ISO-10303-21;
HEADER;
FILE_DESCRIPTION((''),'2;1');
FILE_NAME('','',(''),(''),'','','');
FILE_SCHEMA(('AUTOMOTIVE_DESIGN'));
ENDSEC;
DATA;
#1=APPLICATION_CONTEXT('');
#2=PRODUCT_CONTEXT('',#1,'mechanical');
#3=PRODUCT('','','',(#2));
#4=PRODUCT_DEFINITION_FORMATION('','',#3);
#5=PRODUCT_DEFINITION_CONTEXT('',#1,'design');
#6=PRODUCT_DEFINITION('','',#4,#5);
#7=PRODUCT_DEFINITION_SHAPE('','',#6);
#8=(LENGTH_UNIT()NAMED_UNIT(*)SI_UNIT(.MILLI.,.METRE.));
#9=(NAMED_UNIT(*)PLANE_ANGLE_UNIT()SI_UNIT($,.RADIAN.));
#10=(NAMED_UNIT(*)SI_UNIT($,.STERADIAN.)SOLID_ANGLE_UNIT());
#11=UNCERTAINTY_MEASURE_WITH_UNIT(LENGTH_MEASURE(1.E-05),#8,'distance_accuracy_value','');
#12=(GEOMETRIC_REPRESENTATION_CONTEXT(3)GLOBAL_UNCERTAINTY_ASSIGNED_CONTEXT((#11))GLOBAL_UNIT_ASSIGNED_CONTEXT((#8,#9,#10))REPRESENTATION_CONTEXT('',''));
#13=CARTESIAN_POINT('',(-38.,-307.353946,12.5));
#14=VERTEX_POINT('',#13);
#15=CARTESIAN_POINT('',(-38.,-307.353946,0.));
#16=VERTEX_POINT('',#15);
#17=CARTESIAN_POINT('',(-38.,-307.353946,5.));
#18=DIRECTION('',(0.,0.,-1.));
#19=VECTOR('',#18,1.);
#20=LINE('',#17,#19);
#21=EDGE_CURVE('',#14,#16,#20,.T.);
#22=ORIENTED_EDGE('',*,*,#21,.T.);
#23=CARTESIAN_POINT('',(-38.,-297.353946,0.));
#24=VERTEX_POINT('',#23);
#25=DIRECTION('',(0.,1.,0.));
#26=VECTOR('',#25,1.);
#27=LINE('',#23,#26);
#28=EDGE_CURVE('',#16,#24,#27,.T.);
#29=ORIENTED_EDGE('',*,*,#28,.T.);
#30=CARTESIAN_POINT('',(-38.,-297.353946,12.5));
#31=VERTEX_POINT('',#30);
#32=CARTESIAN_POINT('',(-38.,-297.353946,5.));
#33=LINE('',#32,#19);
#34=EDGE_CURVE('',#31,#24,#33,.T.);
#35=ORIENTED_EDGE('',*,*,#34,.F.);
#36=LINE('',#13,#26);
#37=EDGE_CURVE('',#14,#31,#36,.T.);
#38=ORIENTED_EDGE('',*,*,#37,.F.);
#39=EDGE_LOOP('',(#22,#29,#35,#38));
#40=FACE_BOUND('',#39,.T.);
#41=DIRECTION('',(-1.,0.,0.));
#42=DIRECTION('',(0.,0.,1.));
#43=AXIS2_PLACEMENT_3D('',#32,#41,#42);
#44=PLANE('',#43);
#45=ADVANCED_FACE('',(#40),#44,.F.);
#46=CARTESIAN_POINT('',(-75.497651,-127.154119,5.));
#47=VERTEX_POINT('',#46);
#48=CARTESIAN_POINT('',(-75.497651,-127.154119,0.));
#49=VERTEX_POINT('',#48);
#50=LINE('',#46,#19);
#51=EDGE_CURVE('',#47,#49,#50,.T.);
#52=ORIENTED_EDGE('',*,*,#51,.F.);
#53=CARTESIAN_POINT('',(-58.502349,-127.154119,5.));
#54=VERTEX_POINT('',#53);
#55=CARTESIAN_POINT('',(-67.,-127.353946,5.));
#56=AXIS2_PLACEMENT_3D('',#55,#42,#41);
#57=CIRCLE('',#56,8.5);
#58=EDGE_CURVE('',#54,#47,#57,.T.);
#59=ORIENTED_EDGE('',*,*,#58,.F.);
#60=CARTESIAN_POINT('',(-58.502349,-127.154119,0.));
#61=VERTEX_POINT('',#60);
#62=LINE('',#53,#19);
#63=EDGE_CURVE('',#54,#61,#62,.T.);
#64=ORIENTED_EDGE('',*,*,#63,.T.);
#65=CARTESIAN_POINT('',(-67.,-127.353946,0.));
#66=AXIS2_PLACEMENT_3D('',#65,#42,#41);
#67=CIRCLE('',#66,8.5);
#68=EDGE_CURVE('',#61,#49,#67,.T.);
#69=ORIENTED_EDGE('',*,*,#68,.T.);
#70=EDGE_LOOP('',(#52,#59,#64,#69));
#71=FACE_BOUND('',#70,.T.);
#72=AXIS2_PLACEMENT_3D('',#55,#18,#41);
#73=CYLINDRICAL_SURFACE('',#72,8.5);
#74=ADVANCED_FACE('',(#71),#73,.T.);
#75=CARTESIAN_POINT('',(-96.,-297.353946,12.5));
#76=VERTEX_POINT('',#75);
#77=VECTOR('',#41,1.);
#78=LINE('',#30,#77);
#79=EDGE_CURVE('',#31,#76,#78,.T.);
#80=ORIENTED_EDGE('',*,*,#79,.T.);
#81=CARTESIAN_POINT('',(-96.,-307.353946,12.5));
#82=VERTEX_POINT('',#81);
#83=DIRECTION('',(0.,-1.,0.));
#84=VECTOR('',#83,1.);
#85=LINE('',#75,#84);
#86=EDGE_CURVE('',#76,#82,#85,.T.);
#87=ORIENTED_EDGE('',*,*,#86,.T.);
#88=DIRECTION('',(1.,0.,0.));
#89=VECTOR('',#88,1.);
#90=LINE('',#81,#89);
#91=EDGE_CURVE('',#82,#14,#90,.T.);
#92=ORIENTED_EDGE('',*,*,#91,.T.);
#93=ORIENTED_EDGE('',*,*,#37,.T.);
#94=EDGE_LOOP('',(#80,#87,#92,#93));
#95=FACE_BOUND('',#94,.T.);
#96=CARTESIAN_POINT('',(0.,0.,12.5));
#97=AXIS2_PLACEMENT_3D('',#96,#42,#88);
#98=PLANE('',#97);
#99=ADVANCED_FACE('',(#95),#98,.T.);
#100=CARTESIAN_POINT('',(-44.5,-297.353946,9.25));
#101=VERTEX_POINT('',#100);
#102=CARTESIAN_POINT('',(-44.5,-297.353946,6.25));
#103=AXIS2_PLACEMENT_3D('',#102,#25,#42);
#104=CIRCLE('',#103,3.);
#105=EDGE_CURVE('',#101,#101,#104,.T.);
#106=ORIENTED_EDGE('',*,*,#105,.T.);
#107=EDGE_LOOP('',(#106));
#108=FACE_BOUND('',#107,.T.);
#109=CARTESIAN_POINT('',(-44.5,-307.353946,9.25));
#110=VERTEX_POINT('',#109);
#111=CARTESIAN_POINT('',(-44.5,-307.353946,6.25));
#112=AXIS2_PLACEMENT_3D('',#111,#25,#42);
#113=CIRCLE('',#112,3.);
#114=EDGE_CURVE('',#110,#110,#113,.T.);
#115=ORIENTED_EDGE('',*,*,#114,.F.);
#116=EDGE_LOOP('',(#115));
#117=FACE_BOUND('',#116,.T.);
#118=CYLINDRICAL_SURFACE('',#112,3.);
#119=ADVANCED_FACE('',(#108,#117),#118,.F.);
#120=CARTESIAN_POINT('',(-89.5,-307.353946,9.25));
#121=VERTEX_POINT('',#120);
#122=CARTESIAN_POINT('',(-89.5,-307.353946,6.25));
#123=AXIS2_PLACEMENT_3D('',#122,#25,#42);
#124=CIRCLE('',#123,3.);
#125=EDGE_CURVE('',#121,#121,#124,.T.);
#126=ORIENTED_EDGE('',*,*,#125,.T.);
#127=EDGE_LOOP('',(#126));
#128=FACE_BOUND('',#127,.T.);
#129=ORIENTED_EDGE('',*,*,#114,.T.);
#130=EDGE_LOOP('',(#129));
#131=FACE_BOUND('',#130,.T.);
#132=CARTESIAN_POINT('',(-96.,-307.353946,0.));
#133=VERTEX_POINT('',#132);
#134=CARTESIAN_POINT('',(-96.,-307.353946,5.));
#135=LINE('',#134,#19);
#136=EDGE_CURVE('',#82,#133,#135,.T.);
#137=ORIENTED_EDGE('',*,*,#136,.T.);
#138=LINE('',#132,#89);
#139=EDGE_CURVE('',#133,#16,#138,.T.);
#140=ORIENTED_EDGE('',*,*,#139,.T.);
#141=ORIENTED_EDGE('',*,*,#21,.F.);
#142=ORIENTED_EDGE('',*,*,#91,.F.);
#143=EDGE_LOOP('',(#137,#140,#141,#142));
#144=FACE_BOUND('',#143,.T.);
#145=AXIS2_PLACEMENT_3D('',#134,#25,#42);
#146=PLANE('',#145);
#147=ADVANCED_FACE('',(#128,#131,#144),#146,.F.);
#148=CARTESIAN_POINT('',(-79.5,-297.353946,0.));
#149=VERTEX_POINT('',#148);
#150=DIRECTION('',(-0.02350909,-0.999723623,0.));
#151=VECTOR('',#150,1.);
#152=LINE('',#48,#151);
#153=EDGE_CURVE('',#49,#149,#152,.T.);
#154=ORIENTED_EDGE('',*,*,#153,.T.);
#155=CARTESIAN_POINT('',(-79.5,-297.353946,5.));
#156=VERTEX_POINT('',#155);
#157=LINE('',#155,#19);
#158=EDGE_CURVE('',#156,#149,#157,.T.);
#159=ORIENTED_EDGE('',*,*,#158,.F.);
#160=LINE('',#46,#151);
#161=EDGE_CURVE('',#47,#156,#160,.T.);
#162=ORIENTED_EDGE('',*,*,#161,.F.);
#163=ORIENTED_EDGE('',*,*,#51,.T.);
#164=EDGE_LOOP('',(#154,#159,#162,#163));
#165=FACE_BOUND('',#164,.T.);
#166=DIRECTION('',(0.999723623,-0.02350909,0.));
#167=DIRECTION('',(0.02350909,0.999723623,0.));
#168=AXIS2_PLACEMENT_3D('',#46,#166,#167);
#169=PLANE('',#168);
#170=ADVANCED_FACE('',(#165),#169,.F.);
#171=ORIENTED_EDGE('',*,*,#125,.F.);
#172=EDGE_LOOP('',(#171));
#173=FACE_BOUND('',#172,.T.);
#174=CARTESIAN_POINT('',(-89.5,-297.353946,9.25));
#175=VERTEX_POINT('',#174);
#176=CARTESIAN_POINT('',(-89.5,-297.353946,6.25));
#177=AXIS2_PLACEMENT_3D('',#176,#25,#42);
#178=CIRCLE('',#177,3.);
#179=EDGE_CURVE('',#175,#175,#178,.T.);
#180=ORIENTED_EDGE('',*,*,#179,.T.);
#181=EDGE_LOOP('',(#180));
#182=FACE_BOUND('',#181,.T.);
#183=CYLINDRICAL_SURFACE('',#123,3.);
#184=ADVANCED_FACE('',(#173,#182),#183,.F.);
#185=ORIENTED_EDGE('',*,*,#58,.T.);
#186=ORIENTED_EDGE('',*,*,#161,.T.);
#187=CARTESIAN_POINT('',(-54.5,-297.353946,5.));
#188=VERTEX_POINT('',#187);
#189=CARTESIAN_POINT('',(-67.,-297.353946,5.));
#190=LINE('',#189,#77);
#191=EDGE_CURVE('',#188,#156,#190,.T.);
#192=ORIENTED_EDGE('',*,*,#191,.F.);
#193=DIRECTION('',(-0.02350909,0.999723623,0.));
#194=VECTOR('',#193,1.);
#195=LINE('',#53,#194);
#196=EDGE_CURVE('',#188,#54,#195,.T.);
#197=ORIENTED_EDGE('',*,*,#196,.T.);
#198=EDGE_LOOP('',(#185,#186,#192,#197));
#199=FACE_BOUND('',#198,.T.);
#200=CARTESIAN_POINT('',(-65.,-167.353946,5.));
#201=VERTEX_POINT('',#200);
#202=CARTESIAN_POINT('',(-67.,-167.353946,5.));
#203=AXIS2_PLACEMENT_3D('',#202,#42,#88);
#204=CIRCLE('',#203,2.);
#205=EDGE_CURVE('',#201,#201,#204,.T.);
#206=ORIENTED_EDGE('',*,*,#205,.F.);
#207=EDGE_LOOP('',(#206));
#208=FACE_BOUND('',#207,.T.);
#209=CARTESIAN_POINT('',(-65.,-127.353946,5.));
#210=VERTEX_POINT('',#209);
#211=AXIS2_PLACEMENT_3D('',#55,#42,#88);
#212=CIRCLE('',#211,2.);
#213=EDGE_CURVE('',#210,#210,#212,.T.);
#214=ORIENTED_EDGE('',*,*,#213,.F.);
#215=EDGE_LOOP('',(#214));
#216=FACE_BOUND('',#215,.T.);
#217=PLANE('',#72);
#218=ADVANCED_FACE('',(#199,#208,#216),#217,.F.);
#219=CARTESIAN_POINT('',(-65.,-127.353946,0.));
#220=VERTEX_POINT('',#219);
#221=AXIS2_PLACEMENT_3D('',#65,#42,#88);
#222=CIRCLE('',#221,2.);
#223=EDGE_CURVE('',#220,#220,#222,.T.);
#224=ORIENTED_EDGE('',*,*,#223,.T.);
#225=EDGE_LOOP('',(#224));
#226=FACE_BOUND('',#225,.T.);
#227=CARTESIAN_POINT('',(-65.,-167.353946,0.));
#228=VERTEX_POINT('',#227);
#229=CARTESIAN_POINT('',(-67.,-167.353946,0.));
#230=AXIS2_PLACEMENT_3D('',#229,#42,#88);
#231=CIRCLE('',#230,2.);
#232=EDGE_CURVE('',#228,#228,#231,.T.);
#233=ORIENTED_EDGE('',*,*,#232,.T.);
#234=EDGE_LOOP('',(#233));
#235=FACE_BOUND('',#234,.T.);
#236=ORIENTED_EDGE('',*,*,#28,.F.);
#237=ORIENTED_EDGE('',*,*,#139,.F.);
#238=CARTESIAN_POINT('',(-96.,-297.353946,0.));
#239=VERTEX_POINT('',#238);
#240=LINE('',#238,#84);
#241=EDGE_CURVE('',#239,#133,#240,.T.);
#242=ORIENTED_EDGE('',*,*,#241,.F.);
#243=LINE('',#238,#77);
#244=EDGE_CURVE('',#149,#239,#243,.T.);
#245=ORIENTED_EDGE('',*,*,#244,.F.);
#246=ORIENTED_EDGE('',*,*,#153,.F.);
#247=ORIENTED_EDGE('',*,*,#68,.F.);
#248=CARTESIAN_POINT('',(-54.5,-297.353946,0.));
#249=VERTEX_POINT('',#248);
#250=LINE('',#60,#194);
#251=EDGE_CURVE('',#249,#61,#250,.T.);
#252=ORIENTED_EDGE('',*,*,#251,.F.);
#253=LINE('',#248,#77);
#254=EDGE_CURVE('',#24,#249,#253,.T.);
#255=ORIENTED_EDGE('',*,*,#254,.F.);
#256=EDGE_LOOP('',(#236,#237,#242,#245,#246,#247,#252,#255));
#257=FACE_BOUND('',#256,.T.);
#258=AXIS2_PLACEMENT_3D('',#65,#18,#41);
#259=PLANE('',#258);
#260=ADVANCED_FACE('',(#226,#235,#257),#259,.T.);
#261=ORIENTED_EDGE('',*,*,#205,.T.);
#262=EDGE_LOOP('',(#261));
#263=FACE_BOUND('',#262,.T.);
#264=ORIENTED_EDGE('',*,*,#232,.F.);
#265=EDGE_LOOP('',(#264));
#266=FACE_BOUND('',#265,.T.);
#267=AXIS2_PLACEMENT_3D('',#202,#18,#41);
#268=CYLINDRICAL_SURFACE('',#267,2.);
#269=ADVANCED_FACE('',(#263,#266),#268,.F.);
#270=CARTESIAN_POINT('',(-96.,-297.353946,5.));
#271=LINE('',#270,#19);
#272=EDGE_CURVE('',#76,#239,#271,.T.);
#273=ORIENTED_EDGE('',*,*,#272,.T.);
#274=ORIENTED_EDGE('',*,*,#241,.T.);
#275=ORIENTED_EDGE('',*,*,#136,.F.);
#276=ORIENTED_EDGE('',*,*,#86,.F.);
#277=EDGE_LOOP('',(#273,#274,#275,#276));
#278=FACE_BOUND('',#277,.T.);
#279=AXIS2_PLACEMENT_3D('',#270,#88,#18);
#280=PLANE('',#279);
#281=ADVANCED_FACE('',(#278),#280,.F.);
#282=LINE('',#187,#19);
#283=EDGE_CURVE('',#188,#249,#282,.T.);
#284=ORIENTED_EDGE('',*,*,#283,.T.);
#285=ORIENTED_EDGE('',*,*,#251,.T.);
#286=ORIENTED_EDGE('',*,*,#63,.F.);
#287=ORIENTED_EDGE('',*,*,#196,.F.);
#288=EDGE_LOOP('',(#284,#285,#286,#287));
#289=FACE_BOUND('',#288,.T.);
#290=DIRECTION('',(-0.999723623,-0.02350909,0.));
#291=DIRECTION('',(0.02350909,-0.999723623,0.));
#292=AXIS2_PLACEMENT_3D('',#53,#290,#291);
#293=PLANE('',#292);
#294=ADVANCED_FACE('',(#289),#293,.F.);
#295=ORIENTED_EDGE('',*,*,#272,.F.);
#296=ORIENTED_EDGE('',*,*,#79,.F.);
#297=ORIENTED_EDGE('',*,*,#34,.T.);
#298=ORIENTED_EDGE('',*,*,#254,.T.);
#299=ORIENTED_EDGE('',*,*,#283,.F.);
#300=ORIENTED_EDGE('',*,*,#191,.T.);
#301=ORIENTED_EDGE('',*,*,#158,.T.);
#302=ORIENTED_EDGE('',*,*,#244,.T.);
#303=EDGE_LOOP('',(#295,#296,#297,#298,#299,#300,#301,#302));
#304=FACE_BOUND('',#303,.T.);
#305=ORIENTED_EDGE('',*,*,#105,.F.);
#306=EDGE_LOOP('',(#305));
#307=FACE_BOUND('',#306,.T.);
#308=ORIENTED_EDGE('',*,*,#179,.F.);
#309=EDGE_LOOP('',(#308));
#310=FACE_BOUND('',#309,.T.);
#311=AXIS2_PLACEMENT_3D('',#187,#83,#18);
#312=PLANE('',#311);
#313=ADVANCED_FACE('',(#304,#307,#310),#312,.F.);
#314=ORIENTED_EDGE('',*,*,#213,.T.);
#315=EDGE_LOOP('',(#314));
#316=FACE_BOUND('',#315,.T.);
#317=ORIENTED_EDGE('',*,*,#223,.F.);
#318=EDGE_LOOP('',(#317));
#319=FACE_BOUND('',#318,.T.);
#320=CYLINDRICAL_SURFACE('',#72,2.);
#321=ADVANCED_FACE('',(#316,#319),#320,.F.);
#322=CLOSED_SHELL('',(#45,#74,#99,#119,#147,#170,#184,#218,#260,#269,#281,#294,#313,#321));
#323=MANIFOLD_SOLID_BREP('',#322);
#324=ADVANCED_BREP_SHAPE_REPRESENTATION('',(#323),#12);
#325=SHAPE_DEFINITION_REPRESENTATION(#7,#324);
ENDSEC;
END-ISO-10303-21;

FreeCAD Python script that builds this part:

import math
import FreeCAD as App
import Part
import Sketcher

V = App.Vector
Q = App.Units.Quantity


def add_polygon(sketch, points):
    """Adds a closed chain of lines whose ends are joined by coincident constraints."""
    first, n = sketch.GeometryCount, len(points)
    for a, b in zip(points, points[1:] + points[:1]):
        sketch.addGeometry(Part.LineSegment(App.Vector(*a, 0), App.Vector(*b, 0)), False)
    for i in range(n):
        sketch.addConstraint(Sketcher.Constraint("Coincident", first + i, 2, first + (i + 1) % n, 1))

doc = App.newDocument("Part")
params = doc.addObject("Spreadsheet::Sheet", "Params")
for row, (alias, value) in enumerate([
    ("sketch1_diameter", "4 mm"),
    ("sketch1_radius", "8.5 mm"),
    ("sketch1_width", "58 mm"),
    ("sketch1_height", "10 mm"),
    ("sketch1_width2", "16.5 mm"),
    ("pad1_length", "5 mm"),
    ("sketch2_width", "58 mm"),
    ("sketch2_height", "10 mm"),
    ("pad2_length", "10 mm"),
    ("sketch3_diameter", "6 mm"),
], start=1):
    params.set(f"A{row}", alias)
    params.set(f"B{row}", "=" + value)
    params.setAlias(f"B{row}", alias)

body = doc.addObject("PartDesign::Body", "Body")

# Sketch on XY plane
sketch1 = body.newObject("Sketcher::SketchObject", "Sketch")
sketch1.AttachmentSupport = (doc.getObject("XY_Plane"), [""])
sketch1.MapMode = "FlatFace"
sketch1.addGeometry([
    Part.LineSegment(V(-75.5, -127.2, 0), V(-79.5, -297.4, 0)),  # 0
    Part.LineSegment(V(-79.5, -297.4, 0), V(-96, -297.4, 0)),  # 1
    Part.LineSegment(V(-96, -297.4, 0), V(-96, -307.4, 0)),  # 2
    Part.LineSegment(V(-96, -307.4, 0), V(-38, -307.4, 0)),  # 3
    Part.LineSegment(V(-38, -307.4, 0), V(-38, -297.4, 0)),  # 4
    Part.LineSegment(V(-38, -297.4, 0), V(-54.5, -297.4, 0)),  # 5
    Part.LineSegment(V(-54.5, -297.4, 0), V(-58.5, -127.2, 0)),  # 6
    Part.ArcOfCircle(Part.Circle(V(-67, -127.4, 0), V(0, 0, 1), 8.5), math.radians(1), math.radians(179)),  # 7
    Part.Circle(V(-67, -167.4, 0), V(0, 0, 1), 2),  # 8
    Part.Circle(V(-67, -127.4, 0), V(0, 0, 1), 2),  # 9
], False)
sketch1.addConstraint([
    Sketcher.Constraint("Coincident", 0, 2, 1, 1),
    Sketcher.Constraint("Coincident", 1, 2, 2, 1),
    Sketcher.Constraint("Coincident", 2, 2, 3, 1),
    Sketcher.Constraint("Coincident", 3, 2, 4, 1),
    Sketcher.Constraint("Coincident", 4, 2, 5, 1),
    Sketcher.Constraint("Coincident", 5, 2, 6, 1),
    Sketcher.Constraint("Tangent", 6, 2, 7, 1),
    Sketcher.Constraint("Tangent", 7, 2, 0, 1),
    Sketcher.Constraint("Horizontal", 1),
    Sketcher.Constraint("Vertical", 2),
    Sketcher.Constraint("Horizontal", 3),
    Sketcher.Constraint("Vertical", 4),
    Sketcher.Constraint("Horizontal", 5),
    Sketcher.Constraint("Coincident", 9, 3, 7, 3),
    Sketcher.Constraint("Equal", 8, 9),
    Sketcher.Constraint("Horizontal", 1, 2, 4, 2),
    Sketcher.Constraint("Horizontal", 6, 2, 7, 2),
    Sketcher.Constraint("Vertical", 7, 3, 8, 3),
    Sketcher.Constraint("Equal", 1, 5),
    Sketcher.Constraint("Diameter", 8, Q("4 mm")),
    Sketcher.Constraint("Radius", 7, Q("8.5 mm")),
    Sketcher.Constraint("DistanceX", 3, 1, 3, 2, Q("58 mm")),
    Sketcher.Constraint("DistanceY", 2, 2, 2, 1, Q("10 mm")),
    Sketcher.Constraint("DistanceX", 1, 2, 1, 1, Q("16.5 mm")),
    Sketcher.Constraint("DistanceX", 7, 3, -1, 1, Q("67 mm")),
    Sketcher.Constraint("DistanceY", 8, 3, 7, 3, Q("40 mm")),
    Sketcher.Constraint("DistanceY", 0, 2, 8, 3, Q("130 mm")),
    Sketcher.Constraint("DistanceY", 6, 2, -1, 1, Q("127.154119 mm")),
])
sketch1.setExpression("Constraints[19]", "Params.sketch1_diameter")
sketch1.setExpression("Constraints[20]", "Params.sketch1_radius")
sketch1.setExpression("Constraints[21]", "Params.sketch1_width")
sketch1.setExpression("Constraints[22]", "Params.sketch1_height")
sketch1.setExpression("Constraints[23]", "Params.sketch1_width2")
pad1 = body.newObject("PartDesign::Pad", "Pad")
pad1.Profile = sketch1
pad1.setExpression("Length", "Params.pad1_length")

# Sketch on XY plane
sketch2 = body.newObject("Sketcher::SketchObject", "Sketch001")
sketch2.AttachmentSupport = (doc.getObject("XY_Plane"), [""])
sketch2.MapMode = "FlatFace"
sketch2.AttachmentOffset = App.Placement(V(0, 0, 2.5), App.Rotation())
add_polygon(sketch2, [(-96, -297), (-96, -307), (-38, -307), (-38, -297)])  # lines 0-3
sketch2.addConstraint([
    Sketcher.Constraint("Vertical", 0),
    Sketcher.Constraint("Horizontal", 1),
    Sketcher.Constraint("Vertical", 2),
    Sketcher.Constraint("Horizontal", 3),
    Sketcher.Constraint("DistanceX", 1, 1, 1, 2, Q("58 mm")),
    Sketcher.Constraint("DistanceY", 0, 2, 0, 1, Q("10 mm")),
    Sketcher.Constraint("DistanceX", 0, 2, -1, 1, Q("96 mm")),
    Sketcher.Constraint("DistanceY", 0, 2, -1, 1, Q("307.353946 mm")),
])
sketch2.setExpression("Constraints[8]", "Params.sketch2_width")
sketch2.setExpression("Constraints[9]", "Params.sketch2_height")
pad2 = body.newObject("PartDesign::Pad", "Pad001")
pad2.Profile = sketch2
pad2.setExpression("Length", "Params.pad2_length")

# Sketch on XZ plane
sketch3 = body.newObject("Sketcher::SketchObject", "Sketch002")
sketch3.AttachmentSupport = (doc.getObject("XZ_Plane"), [""])
sketch3.MapMode = "FlatFace"
sketch3.AttachmentOffset = App.Placement(V(0, 0, 297.353946), App.Rotation())
sketch3.addGeometry([
    Part.Circle(V(-89.5, 6.2, 0), V(0, 0, 1), 3),
    Part.Circle(V(-44.5, 6.2, 0), V(0, 0, 1), 3),
], False)
sketch3.addConstraint([
    Sketcher.Constraint("Equal", 0, 1),
    Sketcher.Constraint("Horizontal", 0, 3, 1, 3),
    Sketcher.Constraint("Diameter", 0, Q("6 mm")),
    Sketcher.Constraint("DistanceX", 0, 3, 1, 3, Q("45 mm")),
    Sketcher.Constraint("DistanceX", 0, 3, -1, 1, Q("89.5 mm")),
    Sketcher.Constraint("DistanceY", -1, 1, 0, 3, Q("6.25 mm")),
])
sketch3.setExpression("Constraints[2]", "Params.sketch3_diameter")
pocket1 = body.newObject("PartDesign::Pocket", "Pocket")
pocket1.Profile = sketch3
pocket1.Type = "ThroughAll"
pocket1.Reversed = True

doc.recompute()
